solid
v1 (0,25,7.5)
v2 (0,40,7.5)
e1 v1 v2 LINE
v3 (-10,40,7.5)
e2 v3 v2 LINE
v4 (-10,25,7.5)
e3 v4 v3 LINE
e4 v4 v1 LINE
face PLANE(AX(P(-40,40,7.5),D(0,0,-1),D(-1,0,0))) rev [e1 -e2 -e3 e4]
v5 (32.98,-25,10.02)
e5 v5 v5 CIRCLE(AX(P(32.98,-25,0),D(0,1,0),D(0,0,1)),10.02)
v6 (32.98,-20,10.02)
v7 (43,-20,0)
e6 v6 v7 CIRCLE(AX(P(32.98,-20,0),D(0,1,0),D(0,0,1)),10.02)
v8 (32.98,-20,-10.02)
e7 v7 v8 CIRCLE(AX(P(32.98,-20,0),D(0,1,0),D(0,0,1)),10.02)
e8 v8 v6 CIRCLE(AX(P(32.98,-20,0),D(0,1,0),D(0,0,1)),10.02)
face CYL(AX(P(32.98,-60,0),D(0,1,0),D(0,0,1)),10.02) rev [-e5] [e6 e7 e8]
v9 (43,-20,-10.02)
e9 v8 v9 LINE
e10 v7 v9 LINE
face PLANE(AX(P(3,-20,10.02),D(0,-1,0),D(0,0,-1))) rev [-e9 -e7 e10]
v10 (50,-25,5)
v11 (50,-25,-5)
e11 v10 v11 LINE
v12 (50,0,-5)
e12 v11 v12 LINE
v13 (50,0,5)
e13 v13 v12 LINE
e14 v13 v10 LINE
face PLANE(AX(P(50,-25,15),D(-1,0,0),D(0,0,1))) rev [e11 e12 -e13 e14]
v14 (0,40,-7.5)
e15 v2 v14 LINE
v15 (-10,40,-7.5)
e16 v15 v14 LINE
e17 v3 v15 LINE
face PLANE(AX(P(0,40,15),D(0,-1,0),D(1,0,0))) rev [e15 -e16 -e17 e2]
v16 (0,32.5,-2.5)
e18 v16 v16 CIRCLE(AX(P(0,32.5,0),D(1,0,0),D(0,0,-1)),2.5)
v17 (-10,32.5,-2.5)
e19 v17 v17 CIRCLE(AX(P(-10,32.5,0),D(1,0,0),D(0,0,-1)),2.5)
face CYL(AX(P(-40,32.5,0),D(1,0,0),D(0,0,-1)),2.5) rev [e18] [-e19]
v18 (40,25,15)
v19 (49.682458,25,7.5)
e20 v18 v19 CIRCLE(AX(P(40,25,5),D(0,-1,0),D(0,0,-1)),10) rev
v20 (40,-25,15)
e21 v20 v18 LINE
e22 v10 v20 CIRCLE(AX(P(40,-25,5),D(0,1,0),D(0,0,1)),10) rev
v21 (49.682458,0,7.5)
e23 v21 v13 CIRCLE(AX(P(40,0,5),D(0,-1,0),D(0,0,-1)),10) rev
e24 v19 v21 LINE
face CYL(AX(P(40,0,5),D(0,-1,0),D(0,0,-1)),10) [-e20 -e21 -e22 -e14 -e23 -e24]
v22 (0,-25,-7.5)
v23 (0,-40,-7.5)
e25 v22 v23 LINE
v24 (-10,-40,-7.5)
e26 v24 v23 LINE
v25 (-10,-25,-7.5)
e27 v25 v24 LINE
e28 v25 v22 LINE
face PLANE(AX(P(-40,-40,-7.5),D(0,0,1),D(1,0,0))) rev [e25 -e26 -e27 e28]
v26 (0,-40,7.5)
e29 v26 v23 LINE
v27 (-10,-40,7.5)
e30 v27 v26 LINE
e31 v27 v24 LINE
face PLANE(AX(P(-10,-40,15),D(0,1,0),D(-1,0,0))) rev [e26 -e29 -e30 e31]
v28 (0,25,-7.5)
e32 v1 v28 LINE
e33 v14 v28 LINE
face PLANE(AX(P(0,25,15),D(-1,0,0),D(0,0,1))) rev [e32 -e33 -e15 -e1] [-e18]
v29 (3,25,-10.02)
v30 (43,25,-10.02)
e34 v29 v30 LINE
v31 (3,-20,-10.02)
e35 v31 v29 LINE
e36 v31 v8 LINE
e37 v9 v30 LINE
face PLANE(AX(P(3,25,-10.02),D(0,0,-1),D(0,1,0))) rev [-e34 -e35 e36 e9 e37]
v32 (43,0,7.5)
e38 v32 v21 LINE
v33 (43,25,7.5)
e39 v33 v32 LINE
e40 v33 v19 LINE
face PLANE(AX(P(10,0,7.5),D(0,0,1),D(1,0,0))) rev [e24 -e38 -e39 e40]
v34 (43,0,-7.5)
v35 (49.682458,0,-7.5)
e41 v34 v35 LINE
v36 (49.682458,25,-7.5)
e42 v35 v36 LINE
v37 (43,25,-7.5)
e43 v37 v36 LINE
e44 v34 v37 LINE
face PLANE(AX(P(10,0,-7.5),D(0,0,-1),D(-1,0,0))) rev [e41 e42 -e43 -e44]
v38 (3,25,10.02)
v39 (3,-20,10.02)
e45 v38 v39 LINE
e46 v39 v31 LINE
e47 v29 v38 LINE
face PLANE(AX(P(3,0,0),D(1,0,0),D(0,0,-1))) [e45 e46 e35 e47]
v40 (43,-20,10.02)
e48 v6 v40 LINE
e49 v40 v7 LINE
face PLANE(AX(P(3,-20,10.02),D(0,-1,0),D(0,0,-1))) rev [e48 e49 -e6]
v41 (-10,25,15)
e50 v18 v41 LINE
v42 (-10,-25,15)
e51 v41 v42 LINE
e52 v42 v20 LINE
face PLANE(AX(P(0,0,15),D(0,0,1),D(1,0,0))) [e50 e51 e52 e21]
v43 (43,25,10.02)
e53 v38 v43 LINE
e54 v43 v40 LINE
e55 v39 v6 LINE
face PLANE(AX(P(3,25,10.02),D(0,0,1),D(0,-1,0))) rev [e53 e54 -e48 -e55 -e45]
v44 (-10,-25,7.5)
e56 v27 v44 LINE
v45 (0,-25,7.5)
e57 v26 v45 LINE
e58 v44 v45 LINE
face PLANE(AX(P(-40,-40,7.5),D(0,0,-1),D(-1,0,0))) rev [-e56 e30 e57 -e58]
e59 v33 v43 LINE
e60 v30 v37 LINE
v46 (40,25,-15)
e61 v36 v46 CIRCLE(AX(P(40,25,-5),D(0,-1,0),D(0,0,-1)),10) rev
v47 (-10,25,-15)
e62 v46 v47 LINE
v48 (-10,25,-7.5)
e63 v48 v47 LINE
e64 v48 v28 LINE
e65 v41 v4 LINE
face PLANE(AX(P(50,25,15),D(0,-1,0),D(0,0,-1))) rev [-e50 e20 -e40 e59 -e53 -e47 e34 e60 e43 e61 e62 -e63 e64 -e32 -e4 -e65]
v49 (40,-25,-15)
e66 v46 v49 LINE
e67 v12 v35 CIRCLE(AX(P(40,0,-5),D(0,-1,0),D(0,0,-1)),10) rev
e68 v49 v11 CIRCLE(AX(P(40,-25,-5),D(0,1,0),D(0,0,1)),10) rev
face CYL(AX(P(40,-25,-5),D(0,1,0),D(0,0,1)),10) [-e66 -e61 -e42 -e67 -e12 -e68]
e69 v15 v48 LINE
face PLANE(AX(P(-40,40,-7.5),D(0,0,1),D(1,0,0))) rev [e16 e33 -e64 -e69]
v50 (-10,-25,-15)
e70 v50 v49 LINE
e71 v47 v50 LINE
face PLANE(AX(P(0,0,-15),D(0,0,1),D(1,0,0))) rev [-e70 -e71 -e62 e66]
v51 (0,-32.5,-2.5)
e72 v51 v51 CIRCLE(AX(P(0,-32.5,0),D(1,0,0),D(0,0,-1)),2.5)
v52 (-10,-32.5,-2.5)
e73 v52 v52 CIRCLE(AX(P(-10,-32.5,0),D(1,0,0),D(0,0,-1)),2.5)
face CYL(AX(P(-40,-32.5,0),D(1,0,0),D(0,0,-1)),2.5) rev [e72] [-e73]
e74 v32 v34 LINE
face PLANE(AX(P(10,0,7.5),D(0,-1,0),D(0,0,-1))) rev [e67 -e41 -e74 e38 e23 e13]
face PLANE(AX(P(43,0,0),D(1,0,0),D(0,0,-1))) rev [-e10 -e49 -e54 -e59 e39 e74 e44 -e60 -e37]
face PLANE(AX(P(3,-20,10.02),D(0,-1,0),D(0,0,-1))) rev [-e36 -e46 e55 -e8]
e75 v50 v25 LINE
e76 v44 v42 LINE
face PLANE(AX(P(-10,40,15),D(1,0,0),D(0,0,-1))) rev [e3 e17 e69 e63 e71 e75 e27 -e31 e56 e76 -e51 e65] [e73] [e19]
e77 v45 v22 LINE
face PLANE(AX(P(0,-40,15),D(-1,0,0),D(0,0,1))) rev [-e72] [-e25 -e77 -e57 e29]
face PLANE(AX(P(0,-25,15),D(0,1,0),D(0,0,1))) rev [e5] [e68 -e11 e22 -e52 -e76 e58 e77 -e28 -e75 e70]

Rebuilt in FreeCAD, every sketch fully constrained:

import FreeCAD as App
import Part
import Sketcher
from FreeCAD import Vector
Q = App.Units.Quantity


def edges_at(feature, points):
    """Names of the edges that pass closest to the given points."""
    edges = feature.Shape.Edges
    near = lambda p: min(range(len(edges)), key=lambda i: edges[i].distToShape(Part.Vertex(*p))[0])
    return sorted({f"Edge{near(p) + 1}" for p in points})


def add_polygon(sketch, points):
    """Adds a closed chain of lines whose ends are joined by coincident constraints."""
    first, n = sketch.GeometryCount, len(points)
    for a, b in zip(points, points[1:] + points[:1]):
        sketch.addGeometry(Part.LineSegment(App.Vector(*a, 0), App.Vector(*b, 0)), False)
    for i in range(n):
        sketch.addConstraint(Sketcher.Constraint("Coincident", first + i, 2, first + (i + 1) % n, 1))

doc = App.newDocument("Part")
params = doc.addObject("Spreadsheet::Sheet", "Params")
for row, (alias, value) in enumerate([
    ("sketch1_width", "10 mm"),
    ("sketch1_width2", "50 mm"),
    ("sketch1_height", "80 mm"),
    ("pad1_length", "30 mm"),
    ("sketch2_width", "45 mm"),
    ("sketch2_height", "20.04 mm"),
    ("pocket1_length", "40 mm"),
    ("sketch3_diameter", "20.04 mm"),
    ("pocket2_length", "40 mm"),
    ("sketch4_width", "25 mm"),
    ("sketch4_height", "15 mm"),
    ("pocket3_length", "40 mm"),
    ("sketch5_diameter", "5 mm"),
    ("sketch5_width", "15 mm"),
    ("sketch5_height", "7.5 mm"),
    ("pocket4_length", "40 mm"),
    ("fillet_radius", "10 mm"),
], start=1):
    params.set(f"A{row}", alias)
    params.set(f"B{row}", "=" + value)
    params.setAlias(f"B{row}", alias)

body = doc.addObject("PartDesign::Body", "Body")

sketch1 = doc.addObject("Sketcher::SketchObject", "Sketch")
body.addObject(sketch1)
sketch1.AttachmentSupport = (doc.XY_Plane, [""])
sketch1.MapMode = "FlatFace"
add_polygon(sketch1, [(-10, 40), (-10, -40), (0, -40), (0, -25), (50, -25), (50, 25), (0, 25), (0, 40)])
sketch1.addConstraint([
    Sketcher.Constraint("Vertical", 0),
    Sketcher.Constraint("Horizontal", 1),
    Sketcher.Constraint("Vertical", 2),
    Sketcher.Constraint("Horizontal", 3),
    Sketcher.Constraint("Vertical", 4),
    Sketcher.Constraint("Horizontal", 5),
    Sketcher.Constraint("Vertical", 6),
    Sketcher.Constraint("Horizontal", 7),
    Sketcher.Constraint("Symmetric", 2, 2, 5, 2, -1, 1),
    Sketcher.Constraint("Symmetric", 1, 2, 6, 2, -1),
    Sketcher.Constraint("Equal", 5, 4),
    Sketcher.Constraint("DistanceX", 1, 1, 1, 2, Q("10 mm")),
    Sketcher.Constraint("DistanceX", 3, 1, 3, 2, Q("50 mm")),
    Sketcher.Constraint("DistanceY", 0, 2, 0, 1, Q("80 mm")),
])
sketch1.setExpression("Constraints[19]", "Params.sketch1_width")
sketch1.setExpression("Constraints[20]", "Params.sketch1_width2")
sketch1.setExpression("Constraints[21]", "Params.sketch1_height")
pad1 = doc.addObject("PartDesign::Pad", "Pad")
body.addObject(pad1)
pad1.Profile = sketch1
pad1.setExpression("Length", "Params.pad1_length")
pad1.Midplane = True

sketch2 = doc.addObject("Sketcher::SketchObject", "Sketch001")
body.addObject(sketch2)
sketch2.AttachmentSupport = (doc.YZ_Plane, [""])
sketch2.MapMode = "FlatFace"
sketch2.AttachmentOffset = App.Placement(Vector(0, 0, 43), App.Rotation())
add_polygon(sketch2, [(25, 10), (-20, 10), (-20, -10), (25, -10)])
sketch2.addConstraint([
    Sketcher.Constraint("Horizontal", 0),
    Sketcher.Constraint("Vertical", 1),
    Sketcher.Constraint("Horizontal", 2),
    Sketcher.Constraint("Vertical", 3),
    Sketcher.Constraint("DistanceX", 0, 2, 0, 1, Q("45 mm")),
    Sketcher.Constraint("DistanceX", 0, 2, -1, 1, Q("20 mm")),
    Sketcher.Constraint("DistanceY", 1, 2, 1, 1, Q("20.04 mm")),
    Sketcher.Constraint("DistanceY", -1, 1, 0, 2, Q("10.02 mm")),
])
sketch2.setExpression("Constraints[8]", "Params.sketch2_width")
sketch2.setExpression("Constraints[10]", "Params.sketch2_height")
pocket1 = doc.addObject("PartDesign::Pocket", "Pocket")
body.addObject(pocket1)
pocket1.Profile = sketch2
pocket1.setExpression("Length", "Params.pocket1_length")

sketch3 = doc.addObject("Sketcher::SketchObject", "Sketch002")
body.addObject(sketch3)
sketch3.AttachmentSupport = (doc.XZ_Plane, [""])
sketch3.MapMode = "FlatFace"
sketch3.AttachmentOffset = App.Placement(Vector(0, 0, 20), App.Rotation())
sketch3.addGeometry(Part.Circle(Vector(33, 0, 0), Vector(0, 0, 1), 10), False)
sketch3.addConstraint([
    Sketcher.Constraint("PointOnObject", 0, 3, -1),
    Sketcher.Constraint("Diameter", 0, Q("20.04 mm")),
    Sketcher.Constraint("DistanceX", -1, 1, 0, 3, Q("32.98 mm")),
])
sketch3.setExpression("Constraints[1]", "Params.sketch3_diameter")
pocket2 = doc.addObject("PartDesign::Pocket", "Pocket001")
body.addObject(pocket2)
pocket2.Profile = sketch3
pocket2.setExpression("Length", "Params.pocket2_length")
pocket2.Reversed = True

sketch4 = doc.addObject("Sketcher::SketchObject", "Sketch003")
body.addObject(sketch4)
sketch4.AttachmentSupport = (doc.YZ_Plane, [""])
sketch4.MapMode = "FlatFace"
sketch4.AttachmentOffset = App.Placement(Vector(0, 0, 50), App.Rotation())
add_polygon(sketch4, [(25, 8), (0, 8), (0, -8), (25, -8)])
sketch4.addConstraint([
    Sketcher.Constraint("Horizontal", 0),
    Sketcher.Constraint("Vertical", 1),
    Sketcher.Constraint("Horizontal", 2),
    Sketcher.Constraint("Vertical", 3),
    Sketcher.Constraint("Symmetric", 0, 2, 1, 2, -1, 1),
    Sketcher.Constraint("DistanceX", 0, 2, 0, 1, Q("25 mm")),
    Sketcher.Constraint("DistanceY", 1, 2, 1, 1, Q("15 mm")),
])
sketch4.setExpression("Constraints[9]", "Params.sketch4_width")
sketch4.setExpression("Constraints[10]", "Params.sketch4_height")
pocket3 = doc.addObject("PartDesign::Pocket", "Pocket002")
body.addObject(pocket3)
pocket3.Profile = sketch4
pocket3.setExpression("Length", "Params.pocket3_length")

sketch5 = doc.addObject("Sketcher::SketchObject", "Sketch004")
body.addObject(sketch5)
sketch5.AttachmentSupport = (doc.YZ_Plane, [""])
sketch5.MapMode = "FlatFace"
sketch5.addGeometry(Part.Circle(Vector(32.5, 0, 0), Vector(0, 0, 1), 2.5), False)
sketch5.addGeometry(Part.Circle(Vector(-32.5, 0, 0), Vector(0, 0, 1), 2.5), False)
add_polygon(sketch5, [(40, -7.5), (25, -7.5), (25, -15), (40, -15)])
add_polygon(sketch5, [(40, 15), (25, 15), (25, 7.5), (40, 7.5)])
add_polygon(sketch5, [(-25, 15), (-40, 15), (-40, 7.5), (-25, 7.5)])
add_polygon(sketch5, [(-25, -7.5), (-40, -7.5), (-40, -15), (-25, -15)])
sketch5.addConstraint([
    Sketcher.Constraint("Horizontal", 2),
    Sketcher.Constraint("Vertical", 3),
    Sketcher.Constraint("Horizontal", 4),
    Sketcher.Constraint("Vertical", 5),
    Sketcher.Constraint("Horizontal", 6),
    Sketcher.Constraint("Vertical", 7),
    Sketcher.Constraint("Horizontal", 8),
    Sketcher.Constraint("Vertical", 9),
    Sketcher.Constraint("Horizontal", 10),
    Sketcher.Constraint("Vertical", 11),
    Sketcher.Constraint("Horizontal", 12),
    Sketcher.Constraint("Vertical", 13),
    Sketcher.Constraint("Horizontal", 14),
    Sketcher.Constraint("Vertical", 15),
    Sketcher.Constraint("Horizontal", 16),
    Sketcher.Constraint("Vertical", 17),
    Sketcher.Constraint("Equal", 0, 1),
    Sketcher.Constraint("Symmetric", 0, 3, 1, 3, -1, 1),
    Sketcher.Constraint("Symmetric", 4, 2, 10, 2, -1, 1),
    Sketcher.Constraint("Symmetric", 2, 2, 12, 2, -1, 1),
    Sketcher.Constraint("Symmetric", 8, 2, 14, 2, -1, 1),
    Sketcher.Constraint("Symmetric", 6, 2, 16, 2, -1, 1),
    Sketcher.Constraint("Symmetric", 9, 2, 10, 2, -2),
    Sketcher.Constraint("Symmetric", 7, 2, 12, 2, -2),
    Sketcher.Constraint("PointOnObject", 0, 3, -1),
    Sketcher.Constraint("Diameter", 0, Q("5 mm")),
    Sketcher.Constraint("DistanceX", 2, 2, 2, 1, Q("15 mm")),
    Sketcher.Constraint("DistanceY", 3, 2, 3, 1, Q("7.5 mm")),
    Sketcher.Constraint("DistanceX", -1, 1, 2, 2, Q("25 mm")),
    Sketcher.Constraint("DistanceY", 3, 2, -1, 1, Q("15 mm")),
    Sketcher.Constraint("DistanceX", 1, 3, 0, 3, Q("65 mm")),
])
sketch5.setExpression("Constraints[41]", "Params.sketch5_diameter")
sketch5.setExpression("Constraints[42]", "Params.sketch5_width")
sketch5.setExpression("Constraints[43]", "Params.sketch5_height")
pocket4 = doc.addObject("PartDesign::Pocket", "Pocket003")
body.addObject(pocket4)
pocket4.Profile = sketch5
pocket4.setExpression("Length", "Params.pocket4_length")
doc.recompute()

fillet = doc.addObject("PartDesign::Fillet", "Fillet")
body.addObject(fillet)
fillet.Base = (pocket4, edges_at(pocket4, [(50, 0, -15), (50, 0, 15)]))
fillet.setExpression("Radius", "Params.fillet_radius")

doc.recompute()
